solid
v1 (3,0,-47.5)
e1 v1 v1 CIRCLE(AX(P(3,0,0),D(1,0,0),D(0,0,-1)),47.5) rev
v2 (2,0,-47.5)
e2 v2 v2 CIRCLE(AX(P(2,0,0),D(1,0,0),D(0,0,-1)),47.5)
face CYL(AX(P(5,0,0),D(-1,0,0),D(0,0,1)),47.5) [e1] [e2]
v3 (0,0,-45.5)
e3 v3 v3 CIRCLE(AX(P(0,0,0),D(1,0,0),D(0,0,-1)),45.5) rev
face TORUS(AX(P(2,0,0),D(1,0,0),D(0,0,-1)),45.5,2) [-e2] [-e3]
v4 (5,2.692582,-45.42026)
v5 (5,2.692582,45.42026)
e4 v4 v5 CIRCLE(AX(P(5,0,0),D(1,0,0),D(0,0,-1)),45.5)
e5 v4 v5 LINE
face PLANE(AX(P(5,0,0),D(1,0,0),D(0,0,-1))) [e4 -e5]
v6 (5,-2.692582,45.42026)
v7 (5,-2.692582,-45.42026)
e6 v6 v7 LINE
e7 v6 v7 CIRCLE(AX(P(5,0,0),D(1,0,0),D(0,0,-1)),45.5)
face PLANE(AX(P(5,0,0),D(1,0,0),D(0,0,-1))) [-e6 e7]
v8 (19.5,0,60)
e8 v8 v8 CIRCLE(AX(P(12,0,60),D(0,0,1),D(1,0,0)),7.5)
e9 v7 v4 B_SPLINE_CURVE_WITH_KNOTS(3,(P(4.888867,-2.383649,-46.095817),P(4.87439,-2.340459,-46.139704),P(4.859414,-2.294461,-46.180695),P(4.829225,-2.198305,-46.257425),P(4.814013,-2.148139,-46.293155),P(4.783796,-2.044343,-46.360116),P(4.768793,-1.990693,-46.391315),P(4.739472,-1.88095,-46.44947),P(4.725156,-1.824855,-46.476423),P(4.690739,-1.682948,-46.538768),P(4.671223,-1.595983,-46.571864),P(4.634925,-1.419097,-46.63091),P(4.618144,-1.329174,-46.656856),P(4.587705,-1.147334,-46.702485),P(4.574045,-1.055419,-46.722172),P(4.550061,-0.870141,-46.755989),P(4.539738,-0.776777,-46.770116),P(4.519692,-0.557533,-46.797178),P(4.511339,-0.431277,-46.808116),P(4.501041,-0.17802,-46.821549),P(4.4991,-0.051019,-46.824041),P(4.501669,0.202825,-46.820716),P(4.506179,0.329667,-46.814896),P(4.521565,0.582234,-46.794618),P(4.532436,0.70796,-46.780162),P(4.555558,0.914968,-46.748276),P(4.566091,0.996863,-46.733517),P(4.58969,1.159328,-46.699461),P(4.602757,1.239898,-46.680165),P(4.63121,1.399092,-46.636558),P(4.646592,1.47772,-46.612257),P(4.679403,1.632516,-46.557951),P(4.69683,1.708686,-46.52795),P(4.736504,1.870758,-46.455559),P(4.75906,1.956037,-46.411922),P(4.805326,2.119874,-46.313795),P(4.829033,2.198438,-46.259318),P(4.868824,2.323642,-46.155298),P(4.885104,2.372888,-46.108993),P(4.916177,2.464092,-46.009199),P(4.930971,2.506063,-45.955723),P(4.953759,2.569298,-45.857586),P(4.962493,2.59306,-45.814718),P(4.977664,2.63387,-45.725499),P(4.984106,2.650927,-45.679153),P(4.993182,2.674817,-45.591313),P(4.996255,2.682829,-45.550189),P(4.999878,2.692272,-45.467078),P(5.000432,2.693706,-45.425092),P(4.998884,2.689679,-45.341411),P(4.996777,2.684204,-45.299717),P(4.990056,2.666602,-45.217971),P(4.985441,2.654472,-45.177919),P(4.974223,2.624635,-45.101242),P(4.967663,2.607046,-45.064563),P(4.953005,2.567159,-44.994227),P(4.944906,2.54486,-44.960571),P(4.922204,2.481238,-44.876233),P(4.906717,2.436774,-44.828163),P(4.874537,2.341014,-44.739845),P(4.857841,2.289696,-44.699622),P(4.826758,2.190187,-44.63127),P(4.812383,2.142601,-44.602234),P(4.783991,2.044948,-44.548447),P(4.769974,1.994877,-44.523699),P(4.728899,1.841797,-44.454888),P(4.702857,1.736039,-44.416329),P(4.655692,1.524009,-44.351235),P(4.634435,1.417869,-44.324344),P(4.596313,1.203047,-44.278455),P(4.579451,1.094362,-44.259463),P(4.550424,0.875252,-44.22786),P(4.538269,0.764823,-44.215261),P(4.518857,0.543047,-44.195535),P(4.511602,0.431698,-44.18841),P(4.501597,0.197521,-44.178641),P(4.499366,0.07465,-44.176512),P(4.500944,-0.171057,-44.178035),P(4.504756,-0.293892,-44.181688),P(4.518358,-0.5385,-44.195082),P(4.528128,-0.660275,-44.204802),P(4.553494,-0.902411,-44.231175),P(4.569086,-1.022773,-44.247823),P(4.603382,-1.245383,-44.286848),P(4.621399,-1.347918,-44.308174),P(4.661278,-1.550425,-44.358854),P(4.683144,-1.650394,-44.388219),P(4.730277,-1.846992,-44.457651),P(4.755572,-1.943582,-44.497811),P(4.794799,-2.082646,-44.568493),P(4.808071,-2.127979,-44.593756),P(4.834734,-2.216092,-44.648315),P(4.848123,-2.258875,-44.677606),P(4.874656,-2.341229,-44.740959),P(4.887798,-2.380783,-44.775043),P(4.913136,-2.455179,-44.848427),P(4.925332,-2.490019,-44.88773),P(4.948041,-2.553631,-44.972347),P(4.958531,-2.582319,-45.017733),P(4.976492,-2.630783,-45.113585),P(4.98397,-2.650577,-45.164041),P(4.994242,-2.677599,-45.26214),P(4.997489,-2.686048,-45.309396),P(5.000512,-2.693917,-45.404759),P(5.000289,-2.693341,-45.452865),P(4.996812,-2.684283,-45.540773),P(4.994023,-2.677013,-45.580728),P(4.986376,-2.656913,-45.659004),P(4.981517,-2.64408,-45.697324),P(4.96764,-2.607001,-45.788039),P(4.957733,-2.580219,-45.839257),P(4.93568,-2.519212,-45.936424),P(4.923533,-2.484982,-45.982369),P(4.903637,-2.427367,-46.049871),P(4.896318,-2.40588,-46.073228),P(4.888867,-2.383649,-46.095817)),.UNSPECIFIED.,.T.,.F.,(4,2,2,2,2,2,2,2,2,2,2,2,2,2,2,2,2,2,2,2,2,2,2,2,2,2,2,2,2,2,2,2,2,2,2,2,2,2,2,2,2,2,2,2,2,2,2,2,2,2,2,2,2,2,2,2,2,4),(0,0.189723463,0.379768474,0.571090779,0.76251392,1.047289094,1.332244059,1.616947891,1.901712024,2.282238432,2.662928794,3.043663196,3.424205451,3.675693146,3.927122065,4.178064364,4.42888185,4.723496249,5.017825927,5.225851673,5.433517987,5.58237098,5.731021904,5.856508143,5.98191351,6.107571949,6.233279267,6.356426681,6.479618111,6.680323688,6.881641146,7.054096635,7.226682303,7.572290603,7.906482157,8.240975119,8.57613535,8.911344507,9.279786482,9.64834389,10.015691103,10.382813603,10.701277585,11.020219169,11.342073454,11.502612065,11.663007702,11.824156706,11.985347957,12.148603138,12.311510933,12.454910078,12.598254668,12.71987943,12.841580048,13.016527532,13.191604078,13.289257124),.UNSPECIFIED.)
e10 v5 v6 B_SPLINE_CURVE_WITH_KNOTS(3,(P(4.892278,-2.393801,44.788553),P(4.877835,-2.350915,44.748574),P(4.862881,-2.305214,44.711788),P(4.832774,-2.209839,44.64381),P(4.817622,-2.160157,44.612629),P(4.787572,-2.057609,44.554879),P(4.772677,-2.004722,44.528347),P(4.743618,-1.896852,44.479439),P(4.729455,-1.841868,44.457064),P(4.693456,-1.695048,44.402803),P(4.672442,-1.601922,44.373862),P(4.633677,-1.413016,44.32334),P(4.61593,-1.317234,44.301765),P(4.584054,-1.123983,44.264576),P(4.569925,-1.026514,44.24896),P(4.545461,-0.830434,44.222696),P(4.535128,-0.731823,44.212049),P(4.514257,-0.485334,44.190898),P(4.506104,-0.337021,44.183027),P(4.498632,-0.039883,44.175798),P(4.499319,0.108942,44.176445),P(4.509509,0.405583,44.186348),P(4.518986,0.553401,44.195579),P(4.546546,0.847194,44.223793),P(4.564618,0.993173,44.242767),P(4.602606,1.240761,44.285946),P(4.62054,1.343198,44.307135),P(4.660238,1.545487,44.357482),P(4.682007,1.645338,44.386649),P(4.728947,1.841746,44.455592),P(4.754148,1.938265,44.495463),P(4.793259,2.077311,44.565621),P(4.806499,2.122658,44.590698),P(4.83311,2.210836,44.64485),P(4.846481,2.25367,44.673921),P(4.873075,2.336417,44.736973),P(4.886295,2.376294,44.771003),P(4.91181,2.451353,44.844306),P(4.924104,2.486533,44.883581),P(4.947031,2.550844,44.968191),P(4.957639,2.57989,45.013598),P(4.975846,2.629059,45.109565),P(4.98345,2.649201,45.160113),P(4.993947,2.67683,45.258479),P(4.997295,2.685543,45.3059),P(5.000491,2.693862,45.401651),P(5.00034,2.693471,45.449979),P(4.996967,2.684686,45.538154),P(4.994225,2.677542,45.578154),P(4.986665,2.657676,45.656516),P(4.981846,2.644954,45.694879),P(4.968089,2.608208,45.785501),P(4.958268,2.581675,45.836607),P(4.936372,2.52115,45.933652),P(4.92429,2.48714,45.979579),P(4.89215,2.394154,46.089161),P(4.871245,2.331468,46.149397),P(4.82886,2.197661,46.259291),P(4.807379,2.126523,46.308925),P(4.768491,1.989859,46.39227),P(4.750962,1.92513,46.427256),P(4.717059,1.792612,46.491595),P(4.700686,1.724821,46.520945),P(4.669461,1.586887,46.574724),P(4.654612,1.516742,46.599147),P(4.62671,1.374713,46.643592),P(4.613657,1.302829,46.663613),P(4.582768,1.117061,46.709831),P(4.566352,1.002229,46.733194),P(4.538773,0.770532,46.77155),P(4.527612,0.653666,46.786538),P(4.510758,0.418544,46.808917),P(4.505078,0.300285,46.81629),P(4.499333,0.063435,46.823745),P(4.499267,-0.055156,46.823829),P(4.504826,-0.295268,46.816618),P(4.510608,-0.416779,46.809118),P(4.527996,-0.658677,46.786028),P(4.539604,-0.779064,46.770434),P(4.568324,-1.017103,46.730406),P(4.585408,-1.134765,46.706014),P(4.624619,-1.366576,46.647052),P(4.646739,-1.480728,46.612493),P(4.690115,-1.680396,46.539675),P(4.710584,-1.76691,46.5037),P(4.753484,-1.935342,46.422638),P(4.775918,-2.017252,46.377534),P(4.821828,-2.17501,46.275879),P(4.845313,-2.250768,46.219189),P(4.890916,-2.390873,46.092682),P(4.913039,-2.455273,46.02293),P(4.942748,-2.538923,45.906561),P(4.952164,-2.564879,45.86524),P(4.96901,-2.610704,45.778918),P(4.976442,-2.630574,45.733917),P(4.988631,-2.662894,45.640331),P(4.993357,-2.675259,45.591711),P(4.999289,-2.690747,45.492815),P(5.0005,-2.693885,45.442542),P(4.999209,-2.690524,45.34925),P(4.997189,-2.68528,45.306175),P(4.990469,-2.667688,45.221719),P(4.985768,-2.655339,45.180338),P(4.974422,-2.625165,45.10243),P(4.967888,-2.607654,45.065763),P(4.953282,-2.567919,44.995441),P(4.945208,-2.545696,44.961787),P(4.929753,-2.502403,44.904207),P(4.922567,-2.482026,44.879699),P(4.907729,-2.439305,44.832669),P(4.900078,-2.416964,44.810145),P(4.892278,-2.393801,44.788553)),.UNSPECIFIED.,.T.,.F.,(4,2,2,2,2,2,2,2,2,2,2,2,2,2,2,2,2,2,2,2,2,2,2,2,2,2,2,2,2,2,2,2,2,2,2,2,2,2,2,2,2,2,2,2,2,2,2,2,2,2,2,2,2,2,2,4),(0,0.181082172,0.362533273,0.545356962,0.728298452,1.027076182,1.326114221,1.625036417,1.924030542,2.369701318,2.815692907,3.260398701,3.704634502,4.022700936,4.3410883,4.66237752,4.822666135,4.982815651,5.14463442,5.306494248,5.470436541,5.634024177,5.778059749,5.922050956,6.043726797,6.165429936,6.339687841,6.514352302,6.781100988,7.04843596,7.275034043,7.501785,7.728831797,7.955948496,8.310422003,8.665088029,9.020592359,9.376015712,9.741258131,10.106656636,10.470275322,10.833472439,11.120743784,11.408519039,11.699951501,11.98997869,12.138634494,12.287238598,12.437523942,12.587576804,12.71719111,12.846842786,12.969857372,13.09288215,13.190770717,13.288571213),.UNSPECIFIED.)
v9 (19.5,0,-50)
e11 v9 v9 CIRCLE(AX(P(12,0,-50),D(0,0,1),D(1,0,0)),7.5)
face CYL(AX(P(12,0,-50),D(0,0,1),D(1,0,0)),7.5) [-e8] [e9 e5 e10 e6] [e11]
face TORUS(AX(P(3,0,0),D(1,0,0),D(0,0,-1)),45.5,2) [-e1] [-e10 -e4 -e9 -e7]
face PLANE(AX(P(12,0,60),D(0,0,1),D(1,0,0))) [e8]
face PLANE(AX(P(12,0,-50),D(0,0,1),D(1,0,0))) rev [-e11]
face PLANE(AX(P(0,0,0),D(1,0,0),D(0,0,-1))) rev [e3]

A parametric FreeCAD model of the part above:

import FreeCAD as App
import Part
import Sketcher
from FreeCAD import Vector
Q = App.Units.Quantity


def edges_at(feature, points):
    """Names of the edges that pass closest to the given points."""
    edges = feature.Shape.Edges
    near = lambda p: min(range(len(edges)), key=lambda i: edges[i].distToShape(Part.Vertex(*p))[0])
    return sorted({f"Edge{near(p) + 1}" for p in points})

doc = App.newDocument("Part")
params = doc.addObject("Spreadsheet::Sheet", "Params")
for row, (alias, value) in enumerate([
    ("sketch1_diameter", "95 mm"),
    ("pad1_length", "5 mm"),
    ("fillet_radius", "2 mm"),
    ("sketch2_diameter", "15 mm"),
    ("pad2_length", "60 mm"),
    ("pad2_length2", "50 mm"),
], start=1):
    params.set(f"A{row}", alias)
    params.set(f"B{row}", "=" + value)
    params.setAlias(f"B{row}", alias)

body = doc.addObject("PartDesign::Body", "Body")

sketch1 = body.newObject("Sketcher::SketchObject", "Sketch")
sketch1.AttachmentSupport = (doc.getObject("YZ_Plane"), [""])
sketch1.MapMode = "FlatFace"
sketch1.addGeometry(Part.Circle(Vector(0, 0, 0), Vector(0, 0, 1), 48), False)
sketch1.addConstraint([
    Sketcher.Constraint("Coincident", 0, 3, -1, 1),
    Sketcher.Constraint("Diameter", 0, Q("95 mm")),
])
sketch1.setExpression("Constraints[1]", "Params.sketch1_diameter")
pad1 = body.newObject("PartDesign::Pad", "Pad")
pad1.Profile = sketch1
pad1.setExpression("Length", "Params.pad1_length")
doc.recompute()

fillet = body.newObject("PartDesign::Fillet", "Fillet")
fillet.Base = (pad1, edges_at(pad1, [(0, 0, 47.5), (5, 0, 47.5)]))
fillet.setExpression("Radius", "Params.fillet_radius")

sketch2 = body.newObject("Sketcher::SketchObject", "Sketch001")
sketch2.AttachmentSupport = (doc.getObject("XY_Plane"), [""])
sketch2.MapMode = "FlatFace"
sketch2.addGeometry(Part.Circle(Vector(12, 0, 0), Vector(0, 0, 1), 8), False)
sketch2.addConstraint([
    Sketcher.Constraint("PointOnObject", 0, 3, -1),
    Sketcher.Constraint("Diameter", 0, Q("15 mm")),
    Sketcher.Constraint("DistanceX", -1, 1, 0, 3, Q("12 mm")),
])
sketch2.setExpression("Constraints[1]", "Params.sketch2_diameter")
pad2 = body.newObject("PartDesign::Pad", "Pad001")
pad2.Profile = sketch2
pad2.Type = "TwoLengths"
pad2.setExpression("Length", "Params.pad2_length")
pad2.setExpression("Length2", "Params.pad2_length2")

doc.recompute()
